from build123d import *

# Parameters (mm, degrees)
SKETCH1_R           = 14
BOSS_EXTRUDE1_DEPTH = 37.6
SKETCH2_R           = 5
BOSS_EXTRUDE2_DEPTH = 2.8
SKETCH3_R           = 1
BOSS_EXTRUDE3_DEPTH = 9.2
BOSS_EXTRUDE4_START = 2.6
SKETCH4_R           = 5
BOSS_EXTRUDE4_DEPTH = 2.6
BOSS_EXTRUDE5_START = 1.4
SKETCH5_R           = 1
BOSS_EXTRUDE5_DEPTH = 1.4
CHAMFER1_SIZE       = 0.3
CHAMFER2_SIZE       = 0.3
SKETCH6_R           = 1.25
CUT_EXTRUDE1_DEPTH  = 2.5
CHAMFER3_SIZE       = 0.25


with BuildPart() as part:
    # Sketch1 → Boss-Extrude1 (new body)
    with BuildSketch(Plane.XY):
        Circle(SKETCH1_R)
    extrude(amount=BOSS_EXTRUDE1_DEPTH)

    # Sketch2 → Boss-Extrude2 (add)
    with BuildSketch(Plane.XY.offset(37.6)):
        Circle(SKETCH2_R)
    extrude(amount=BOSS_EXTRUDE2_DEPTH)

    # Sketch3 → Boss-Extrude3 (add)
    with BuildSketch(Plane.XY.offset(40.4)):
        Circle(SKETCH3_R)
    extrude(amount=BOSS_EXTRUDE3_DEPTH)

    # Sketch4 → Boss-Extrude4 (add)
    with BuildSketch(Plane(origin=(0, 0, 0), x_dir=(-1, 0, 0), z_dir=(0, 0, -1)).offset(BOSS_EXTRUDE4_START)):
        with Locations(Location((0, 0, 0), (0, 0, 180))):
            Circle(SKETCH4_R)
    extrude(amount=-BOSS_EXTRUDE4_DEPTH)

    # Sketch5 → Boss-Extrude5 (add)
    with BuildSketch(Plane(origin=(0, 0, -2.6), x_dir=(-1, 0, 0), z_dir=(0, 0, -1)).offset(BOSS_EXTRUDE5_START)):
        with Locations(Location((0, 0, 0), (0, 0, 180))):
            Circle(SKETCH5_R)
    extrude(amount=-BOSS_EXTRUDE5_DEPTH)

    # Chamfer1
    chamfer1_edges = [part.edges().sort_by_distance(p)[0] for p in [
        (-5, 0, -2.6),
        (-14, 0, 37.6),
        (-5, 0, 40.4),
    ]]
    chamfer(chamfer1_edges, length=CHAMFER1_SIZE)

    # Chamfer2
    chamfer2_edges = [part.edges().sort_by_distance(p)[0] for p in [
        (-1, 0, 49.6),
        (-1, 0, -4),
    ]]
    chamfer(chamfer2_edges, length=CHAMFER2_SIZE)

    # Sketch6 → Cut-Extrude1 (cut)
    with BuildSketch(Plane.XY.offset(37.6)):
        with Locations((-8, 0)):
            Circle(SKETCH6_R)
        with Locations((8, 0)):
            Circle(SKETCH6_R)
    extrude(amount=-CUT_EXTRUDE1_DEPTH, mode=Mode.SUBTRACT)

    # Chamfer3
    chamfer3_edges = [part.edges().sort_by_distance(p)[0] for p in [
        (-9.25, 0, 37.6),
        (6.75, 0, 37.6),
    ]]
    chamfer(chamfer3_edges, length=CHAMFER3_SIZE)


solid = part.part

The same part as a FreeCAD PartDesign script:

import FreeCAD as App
import Part
import Sketcher
from FreeCAD import Vector
Q = App.Units.Quantity


def edges_at(feature, points):
    """Names of the edges that pass closest to the given points."""
    edges = feature.Shape.Edges
    near = lambda p: min(range(len(edges)), key=lambda i: edges[i].distToShape(Part.Vertex(*p))[0])
    return sorted({f"Edge{near(p) + 1}" for p in points})

doc = App.newDocument("Part")
params = doc.addObject("Spreadsheet::Sheet", "Params")
for row, (alias, value) in enumerate([
    ("sketch1_diameter", "28 mm"),
    ("pad1_length", "37.6 mm"),
    ("sketch2_diameter", "10 mm"),
    ("pad2_length", "2.8 mm"),
    ("sketch3_diameter", "2 mm"),
    ("pad3_length", "9.2 mm"),
    ("sketch4_diameter", "10 mm"),
    ("pad4_length", "2.6 mm"),
    ("sketch5_diameter", "2 mm"),
    ("pad5_length", "1.4 mm"),
    ("chamfer_size", "0.3 mm"),
    ("chamfer2_size", "0.3 mm"),
    ("sketch6_diameter", "2.5 mm"),
    ("pocket1_length", "2.5 mm"),
    ("chamfer3_size", "0.25 mm"),
], start=1):
    params.set(f"A{row}", alias)
    params.set(f"B{row}", "=" + value)
    params.setAlias(f"B{row}", alias)

body = doc.addObject("PartDesign::Body", "Body")

sketch1 = body.newObject("Sketcher::SketchObject", "Sketch")
sketch1.AttachmentSupport = (doc.getObject("XY_Plane"), [""])
sketch1.MapMode = "FlatFace"
sketch1.addGeometry(Part.Circle(Vector(0, 0, 0), Vector(0, 0, 1), 14), False)
sketch1.addConstraint([
    Sketcher.Constraint("Coincident", 0, 3, -1, 1),
    Sketcher.Constraint("Diameter", 0, Q("28 mm")),
])
sketch1.setExpression("Constraints[1]", "Params.sketch1_diameter")
pad1 = body.newObject("PartDesign::Pad", "Pad")
pad1.Profile = sketch1
pad1.setExpression("Length", "Params.pad1_length")

sketch2 = body.newObject("Sketcher::SketchObject", "Sketch001")
sketch2.AttachmentSupport = (doc.getObject("XY_Plane"), [""])
sketch2.MapMode = "FlatFace"
sketch2.AttachmentOffset = App.Placement(Vector(0, 0, 37.6), App.Rotation())
sketch2.addGeometry(Part.Circle(Vector(0, 0, 0), Vector(0, 0, 1), 5), False)
sketch2.addConstraint([
    Sketcher.Constraint("Coincident", 0, 3, -1, 1),
    Sketcher.Constraint("Diameter", 0, Q("10 mm")),
])
sketch2.setExpression("Constraints[1]", "Params.sketch2_diameter")
pad2 = body.newObject("PartDesign::Pad", "Pad001")
pad2.Profile = sketch2
pad2.setExpression("Length", "Params.pad2_length")

sketch3 = body.newObject("Sketcher::SketchObject", "Sketch002")
sketch3.AttachmentSupport = (doc.getObject("XY_Plane"), [""])
sketch3.MapMode = "FlatFace"
sketch3.AttachmentOffset = App.Placement(Vector(0, 0, 40.4), App.Rotation())
sketch3.addGeometry(Part.Circle(Vector(0, 0, 0), Vector(0, 0, 1), 1), False)
sketch3.addConstraint([
    Sketcher.Constraint("Coincident", 0, 3, -1, 1),
    Sketcher.Constraint("Diameter", 0, Q("2 mm")),
])
sketch3.setExpression("Constraints[1]", "Params.sketch3_diameter")
pad3 = body.newObject("PartDesign::Pad", "Pad002")
pad3.Profile = sketch3
pad3.setExpression("Length", "Params.pad3_length")

sketch4 = body.newObject("Sketcher::SketchObject", "Sketch003")
sketch4.AttachmentSupport = (doc.getObject("XY_Plane"), [""])
sketch4.MapMode = "FlatFace"
sketch4.AttachmentOffset = App.Placement(Vector(0, 0, -2.6), App.Rotation())
sketch4.addGeometry(Part.Circle(Vector(0, 0, 0), Vector(0, 0, 1), 5), False)
sketch4.addConstraint([
    Sketcher.Constraint("Coincident", 0, 3, -1, 1),
    Sketcher.Constraint("Diameter", 0, Q("10 mm")),
])
sketch4.setExpression("Constraints[1]", "Params.sketch4_diameter")
pad4 = body.newObject("PartDesign::Pad", "Pad003")
pad4.Profile = sketch4
pad4.setExpression("Length", "Params.pad4_length")

sketch5 = body.newObject("Sketcher::SketchObject", "Sketch004")
sketch5.AttachmentSupport = (doc.getObject("XY_Plane"), [""])
sketch5.MapMode = "FlatFace"
sketch5.AttachmentOffset = App.Placement(Vector(0, 0, -4), App.Rotation())
sketch5.addGeometry(Part.Circle(Vector(0, 0, 0), Vector(0, 0, 1), 1), False)
sketch5.addConstraint([
    Sketcher.Constraint("Coincident", 0, 3, -1, 1),
    Sketcher.Constraint("Diameter", 0, Q("2 mm")),
])
sketch5.setExpression("Constraints[1]", "Params.sketch5_diameter")
pad5 = body.newObject("PartDesign::Pad", "Pad004")
pad5.Profile = sketch5
pad5.setExpression("Length", "Params.pad5_length")
doc.recompute()

chamfer = body.newObject("PartDesign::Chamfer", "Chamfer")
chamfer.Base = (pad5, edges_at(pad5, [(-5, 0, -2.6), (-14, 0, 37.6), (-5, 0, 40.4)]))
chamfer.setExpression("Size", "Params.chamfer_size")
doc.recompute()

chamfer2 = body.newObject("PartDesign::Chamfer", "Chamfer001")
chamfer2.Base = (chamfer, edges_at(chamfer, [(-1, 0, 49.6), (-1, 0, -4)]))
chamfer2.setExpression("Size", "Params.chamfer2_size")

sketch6 = body.newObject("Sketcher::SketchObject", "Sketch005")
sketch6.AttachmentSupport = (doc.getObject("XY_Plane"), [""])
sketch6.MapMode = "FlatFace"
sketch6.AttachmentOffset = App.Placement(Vector(0, 0, 37.6), App.Rotation())
sketch6.addGeometry([
    Part.Circle(Vector(-8, 0, 0), Vector(0, 0, 1), 1.2),
    Part.Circle(Vector(8, 0, 0), Vector(0, 0, 1), 1.2),
], False)
sketch6.addConstraint([
    Sketcher.Constraint("Equal", 0, 1),
    Sketcher.Constraint("Symmetric", 0, 3, 1, 3, -1, 1),
    Sketcher.Constraint("PointOnObject", 0, 3, -1),
    Sketcher.Constraint("Diameter", 0, Q("2.5 mm")),
    Sketcher.Constraint("DistanceX", 0, 3, -1, 1, Q("8 mm")),
])
sketch6.setExpression("Constraints[3]", "Params.sketch6_diameter")
pocket1 = body.newObject("PartDesign::Pocket", "Pocket")
pocket1.Profile = sketch6
pocket1.setExpression("Length", "Params.pocket1_length")
doc.recompute()

chamfer3 = body.newObject("PartDesign::Chamfer", "Chamfer002")
chamfer3.Base = (pocket1, edges_at(pocket1, [(-9.25, 0, 37.6), (6.75, 0, 37.6)]))
chamfer3.setExpression("Size", "Params.chamfer3_size")

doc.recompute()
